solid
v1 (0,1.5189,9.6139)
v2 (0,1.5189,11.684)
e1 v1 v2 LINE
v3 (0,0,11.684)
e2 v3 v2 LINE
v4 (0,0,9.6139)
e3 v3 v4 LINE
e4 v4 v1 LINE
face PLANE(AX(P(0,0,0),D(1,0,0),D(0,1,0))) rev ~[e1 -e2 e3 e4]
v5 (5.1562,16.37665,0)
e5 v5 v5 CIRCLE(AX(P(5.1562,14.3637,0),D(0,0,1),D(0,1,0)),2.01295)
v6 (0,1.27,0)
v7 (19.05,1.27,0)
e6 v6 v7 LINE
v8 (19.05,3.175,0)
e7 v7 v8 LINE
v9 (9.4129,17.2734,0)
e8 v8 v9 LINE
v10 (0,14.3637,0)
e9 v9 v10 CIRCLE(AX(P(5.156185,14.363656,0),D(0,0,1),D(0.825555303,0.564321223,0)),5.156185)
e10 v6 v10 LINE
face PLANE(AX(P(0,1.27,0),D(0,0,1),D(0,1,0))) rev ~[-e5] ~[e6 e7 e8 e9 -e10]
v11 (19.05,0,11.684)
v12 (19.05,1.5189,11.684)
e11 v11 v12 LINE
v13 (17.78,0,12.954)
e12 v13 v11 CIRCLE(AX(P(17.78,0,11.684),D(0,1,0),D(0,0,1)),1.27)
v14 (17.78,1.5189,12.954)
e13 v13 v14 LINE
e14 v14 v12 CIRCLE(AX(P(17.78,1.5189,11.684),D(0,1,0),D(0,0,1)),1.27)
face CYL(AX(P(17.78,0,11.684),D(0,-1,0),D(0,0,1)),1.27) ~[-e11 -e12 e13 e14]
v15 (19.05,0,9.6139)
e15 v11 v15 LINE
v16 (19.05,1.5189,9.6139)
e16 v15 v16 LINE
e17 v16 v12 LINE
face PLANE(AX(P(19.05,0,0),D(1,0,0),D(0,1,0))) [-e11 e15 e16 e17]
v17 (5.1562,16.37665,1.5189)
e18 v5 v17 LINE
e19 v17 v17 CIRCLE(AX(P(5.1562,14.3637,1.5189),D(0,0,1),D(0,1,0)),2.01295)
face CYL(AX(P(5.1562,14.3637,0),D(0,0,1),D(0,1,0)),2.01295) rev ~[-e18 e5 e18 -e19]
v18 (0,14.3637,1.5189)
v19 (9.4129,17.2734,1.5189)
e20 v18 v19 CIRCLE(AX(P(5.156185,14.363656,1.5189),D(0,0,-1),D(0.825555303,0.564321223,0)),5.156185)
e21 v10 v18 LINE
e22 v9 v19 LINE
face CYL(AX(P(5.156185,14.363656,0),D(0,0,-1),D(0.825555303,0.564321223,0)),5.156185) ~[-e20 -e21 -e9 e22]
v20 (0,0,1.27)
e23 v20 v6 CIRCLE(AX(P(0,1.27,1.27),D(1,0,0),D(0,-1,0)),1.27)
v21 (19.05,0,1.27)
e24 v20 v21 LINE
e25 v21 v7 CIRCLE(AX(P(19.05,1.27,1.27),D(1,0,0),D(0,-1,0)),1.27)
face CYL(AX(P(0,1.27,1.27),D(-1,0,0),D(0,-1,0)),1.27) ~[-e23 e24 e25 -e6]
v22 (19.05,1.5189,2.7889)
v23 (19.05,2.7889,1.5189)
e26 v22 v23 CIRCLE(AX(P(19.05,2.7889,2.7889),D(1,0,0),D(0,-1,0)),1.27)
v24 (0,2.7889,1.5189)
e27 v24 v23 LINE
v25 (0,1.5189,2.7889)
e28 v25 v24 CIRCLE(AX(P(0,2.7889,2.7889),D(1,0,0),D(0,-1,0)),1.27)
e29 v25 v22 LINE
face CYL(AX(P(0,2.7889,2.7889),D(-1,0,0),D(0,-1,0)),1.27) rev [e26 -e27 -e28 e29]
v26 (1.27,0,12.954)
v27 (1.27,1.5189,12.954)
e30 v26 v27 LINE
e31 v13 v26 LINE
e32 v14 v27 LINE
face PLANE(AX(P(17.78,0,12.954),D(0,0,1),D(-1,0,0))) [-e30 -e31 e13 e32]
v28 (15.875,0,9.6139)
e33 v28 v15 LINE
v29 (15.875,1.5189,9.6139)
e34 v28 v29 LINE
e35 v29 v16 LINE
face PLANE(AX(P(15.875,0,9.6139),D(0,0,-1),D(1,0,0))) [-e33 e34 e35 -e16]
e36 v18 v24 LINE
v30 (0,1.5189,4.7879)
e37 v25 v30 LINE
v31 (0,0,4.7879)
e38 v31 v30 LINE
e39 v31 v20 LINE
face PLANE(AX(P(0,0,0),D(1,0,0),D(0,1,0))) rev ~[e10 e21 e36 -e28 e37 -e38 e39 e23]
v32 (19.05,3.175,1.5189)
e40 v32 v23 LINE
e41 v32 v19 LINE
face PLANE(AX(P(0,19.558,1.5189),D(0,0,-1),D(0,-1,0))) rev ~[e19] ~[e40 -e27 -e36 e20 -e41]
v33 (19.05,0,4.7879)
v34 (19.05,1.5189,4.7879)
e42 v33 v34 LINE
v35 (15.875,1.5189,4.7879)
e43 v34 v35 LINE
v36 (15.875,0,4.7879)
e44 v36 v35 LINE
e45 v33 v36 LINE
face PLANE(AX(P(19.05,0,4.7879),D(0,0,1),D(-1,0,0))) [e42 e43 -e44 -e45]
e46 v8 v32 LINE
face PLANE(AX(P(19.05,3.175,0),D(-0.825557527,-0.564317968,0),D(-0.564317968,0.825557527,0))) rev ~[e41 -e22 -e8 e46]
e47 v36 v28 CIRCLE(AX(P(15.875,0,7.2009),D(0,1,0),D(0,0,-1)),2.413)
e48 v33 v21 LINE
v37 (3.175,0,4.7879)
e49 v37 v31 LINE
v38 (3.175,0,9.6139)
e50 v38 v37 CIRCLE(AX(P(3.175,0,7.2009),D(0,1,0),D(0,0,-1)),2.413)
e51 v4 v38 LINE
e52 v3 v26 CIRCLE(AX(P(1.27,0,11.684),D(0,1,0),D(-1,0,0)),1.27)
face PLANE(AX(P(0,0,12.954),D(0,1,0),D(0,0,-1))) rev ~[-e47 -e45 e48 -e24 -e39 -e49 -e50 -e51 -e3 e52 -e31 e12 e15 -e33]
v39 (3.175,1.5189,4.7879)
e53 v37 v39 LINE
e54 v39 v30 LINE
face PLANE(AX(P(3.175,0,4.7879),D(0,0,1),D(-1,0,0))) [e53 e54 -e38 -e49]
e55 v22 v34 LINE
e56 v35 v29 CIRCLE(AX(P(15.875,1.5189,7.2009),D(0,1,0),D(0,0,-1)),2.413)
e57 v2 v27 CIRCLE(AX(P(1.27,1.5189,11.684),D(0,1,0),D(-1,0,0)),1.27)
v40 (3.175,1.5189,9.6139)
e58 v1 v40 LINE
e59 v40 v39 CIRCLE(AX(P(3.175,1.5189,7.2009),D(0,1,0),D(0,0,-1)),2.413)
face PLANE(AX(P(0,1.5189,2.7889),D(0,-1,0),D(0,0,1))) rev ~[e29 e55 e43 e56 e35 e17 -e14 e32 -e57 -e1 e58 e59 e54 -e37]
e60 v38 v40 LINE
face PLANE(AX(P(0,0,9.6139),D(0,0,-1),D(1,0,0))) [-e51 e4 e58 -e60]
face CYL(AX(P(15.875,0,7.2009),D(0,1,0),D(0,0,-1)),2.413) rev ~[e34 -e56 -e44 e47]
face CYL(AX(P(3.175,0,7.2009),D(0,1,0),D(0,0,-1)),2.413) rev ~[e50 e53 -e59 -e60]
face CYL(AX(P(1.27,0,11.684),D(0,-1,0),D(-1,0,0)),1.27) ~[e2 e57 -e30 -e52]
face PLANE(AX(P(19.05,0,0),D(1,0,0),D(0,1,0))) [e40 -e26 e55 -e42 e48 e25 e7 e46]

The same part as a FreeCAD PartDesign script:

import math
import FreeCAD as App
import Part
import Sketcher
Q = App.Units.Quantity

doc = App.newDocument("Part")
body = doc.addObject("PartDesign::Body", "Body")

# Sketch on YZ plane
sketch1 = doc.addObject("Sketcher::SketchObject", "Sketch")
body.addObject(sketch1)
sketch1.AttachmentSupport = (doc.YZ_Plane, [""])
sketch1.MapMode = "FlatFace"
sketch1.addGeometry([
    Part.LineSegment(App.Vector(1.5189, 12.954, 0), App.Vector(0, 12.954, 0)),  # 0
    Part.LineSegment(App.Vector(0, 12.954, 0), App.Vector(0, 1.27, 0)),  # 1
    Part.ArcOfCircle(Part.Circle(App.Vector(1.27, 1.27, 0), App.Vector(0, 0, 1), 1.27), math.radians(180), math.radians(270)),  # 2
    Part.LineSegment(App.Vector(1.27, 0, 0), App.Vector(19.558, 0, 0)),  # 3
    Part.LineSegment(App.Vector(19.558, 0, 0), App.Vector(19.558, 1.5189, 0)),  # 4
    Part.LineSegment(App.Vector(19.558, 1.5189, 0), App.Vector(2.7889, 1.5189, 0)),  # 5
    Part.ArcOfCircle(Part.Circle(App.Vector(2.7889, 2.7889, 0), App.Vector(0, 0, 1), 1.27), math.radians(180), math.radians(270)),  # 6
    Part.LineSegment(App.Vector(1.5189, 2.7889, 0), App.Vector(1.5189, 12.954, 0)),  # 7
], False)
sketch1.addConstraint([
    Sketcher.Constraint("Coincident", 0, 2, 1, 1),
    Sketcher.Constraint("Tangent", 1, 2, 2, 1),
    Sketcher.Constraint("Tangent", 2, 2, 3, 1),
    Sketcher.Constraint("Coincident", 3, 2, 4, 1),
    Sketcher.Constraint("Coincident", 4, 2, 5, 1),
    Sketcher.Constraint("Tangent", 5, 2, 6, 2),
    Sketcher.Constraint("Tangent", 6, 1, 7, 1),
    Sketcher.Constraint("Coincident", 7, 2, 0, 1),
    Sketcher.Constraint("Horizontal", 0),
    Sketcher.Constraint("Vertical", 1),
    Sketcher.Constraint("Horizontal", 3),
    Sketcher.Constraint("Vertical", 4),
    Sketcher.Constraint("Horizontal", 5),
    Sketcher.Constraint("Vertical", 7),
    Sketcher.Constraint("Equal", 2, 6),
    Sketcher.Constraint("PointOnObject", 0, 2, -2),
    Sketcher.Constraint("PointOnObject", 2, 2, -1),
    Sketcher.Constraint("Equal", 0, 4),
    Sketcher.Constraint("Radius", 2, Q("0.05 in")),
    Sketcher.Constraint("DistanceX", 3, 1, 3, 2, Q("0.72 in")),
    Sketcher.Constraint("DistanceY", 1, 2, 1, 1, Q("0.46 in")),
    Sketcher.Constraint("DistanceX", 0, 2, 0, 1, Q("0.0598 in")),
])
pad1 = doc.addObject("PartDesign::Pad", "Pad")
body.addObject(pad1)
pad1.Profile = sketch1
pad1.Length = Q("0.75 in")

# Sketch on XY plane
sketch2 = doc.addObject("Sketcher::SketchObject", "Sketch001")
body.addObject(sketch2)
sketch2.AttachmentSupport = (doc.XY_Plane, [""])
sketch2.MapMode = "FlatFace"
sketch2.addGeometry([
    Part.LineSegment(App.Vector(-19.05, 29.337, 0), App.Vector(-19.05, -19.558, 0)),  # 0
    Part.LineSegment(App.Vector(-19.05, -19.558, 0), App.Vector(28.575, -19.558, 0)),  # 1
    Part.LineSegment(App.Vector(28.575, -19.558, 0), App.Vector(28.575, 29.337, 0)),  # 2
    Part.LineSegment(App.Vector(28.575, 29.337, 0), App.Vector(-19.05, 29.337, 0)),  # 3
    Part.LineSegment(App.Vector(19.05, 0, 0), App.Vector(0, 0, 0)),  # 4
    Part.LineSegment(App.Vector(0, 0, 0), App.Vector(0, 14.3637, 0)),  # 5
    Part.ArcOfCircle(Part.Circle(App.Vector(5.1562, 14.3637, 0), App.Vector(0, 0, 1), 5.156147), math.radians(34.354859), math.radians(180)),  # 6
    Part.LineSegment(App.Vector(9.4129, 17.2734, 0), App.Vector(19.05, 3.175, 0)),  # 7
    Part.LineSegment(App.Vector(19.05, 3.175, 0), App.Vector(19.05, 0, 0)),  # 8
], False)
sketch2.addConstraint([
    Sketcher.Constraint("Coincident", 0, 2, 1, 1),
    Sketcher.Constraint("Coincident", 1, 2, 2, 1),
    Sketcher.Constraint("Coincident", 2, 2, 3, 1),
    Sketcher.Constraint("Coincident", 3, 2, 0, 1),
    Sketcher.Constraint("Coincident", 4, 2, 5, 1),
    Sketcher.Constraint("Tangent", 5, 2, 6, 2),
    Sketcher.Constraint("Tangent", 6, 1, 7, 1),
    Sketcher.Constraint("Coincident", 7, 2, 8, 1),
    Sketcher.Constraint("Coincident", 8, 2, 4, 1),
    Sketcher.Constraint("Vertical", 0),
    Sketcher.Constraint("Horizontal", 1),
    Sketcher.Constraint("Vertical", 2),
    Sketcher.Constraint("Horizontal", 3),
    Sketcher.Constraint("Horizontal", 4),
    Sketcher.Constraint("Vertical", 5),
    Sketcher.Constraint("Vertical", 8),
    Sketcher.Constraint("Coincident", 4, 2, -1, 1),
    Sketcher.Constraint("Radius", 6, Q("0.203 in")),
    Sketcher.Constraint("DistanceX", 4, 2, 4, 1, Q("0.75 in")),
    Sketcher.Constraint("DistanceX", 1, 1, 1, 2, Q("1.875 in")),
    Sketcher.Constraint("DistanceY", 0, 2, 0, 1, Q("1.925 in")),
    Sketcher.Constraint("DistanceY", 8, 2, 8, 1, Q("0.125 in")),
    Sketcher.Constraint("DistanceX", 0, 2, -1, 1, Q("0.75 in")),
    Sketcher.Constraint("DistanceY", 0, 2, -1, 1, Q("0.77 in")),
    Sketcher.Constraint("DistanceY", 5, 1, 5, 2, Q("0.5655 in")),
])
pocket1 = doc.addObject("PartDesign::Pocket", "Pocket")
body.addObject(pocket1)
pocket1.Profile = sketch2
pocket1.Length = Q("0.51 in")
pocket1.Reversed = True

# Sketch on XY plane
sketch3 = doc.addObject("Sketcher::SketchObject", "Sketch002")
body.addObject(sketch3)
sketch3.AttachmentSupport = (doc.XY_Plane, [""])
sketch3.MapMode = "FlatFace"
sketch3.addGeometry(Part.Circle(App.Vector(5.1562, 14.3637, 0), App.Vector(0, 0, 1), 2.01295), False)
sketch3.addConstraint([
    Sketcher.Constraint("Diameter", 0, Q("0.1585 in")),
    Sketcher.Constraint("DistanceX", -1, 1, 0, 3, Q("0.203 in")),
    Sketcher.Constraint("DistanceY", -1, 1, 0, 3, Q("0.5655 in")),
])
doc.recompute()
hole = doc.addObject("PartDesign::Hole", "Hole")
body.addObject(hole)
hole.Profile = sketch3
hole.ThreadType = "None"
hole.Diameter = Q("0.1585 in")
hole.DepthType = "Dimension"
hole.Depth = Q("0.0597992 in")
hole.DrillPoint = "Flat"
hole.Reversed = True

# Sketch on XZ plane
sketch4 = doc.addObject("Sketcher::SketchObject", "Sketch003")
body.addObject(sketch4)
sketch4.AttachmentSupport = (doc.XZ_Plane, [""])
sketch4.MapMode = "FlatFace"
sketch4.addGeometry(Part.Circle(App.Vector(3.175, 7.2009, 0), App.Vector(0, 0, 1), 2.413), False)
sketch4.addConstraint([
    Sketcher.Constraint("Diameter", 0, Q("0.19 in")),
    Sketcher.Constraint("DistanceX", -1, 1, 0, 3, Q("0.125 in")),
    Sketcher.Constraint("DistanceY", -1, 1, 0, 3, Q("0.2835 in")),
])
doc.recompute()
hole2 = doc.addObject("PartDesign::Hole", "Hole001")
body.addObject(hole2)
hole2.Profile = sketch4
hole2.ThreadType = "None"
hole2.Diameter = Q("0.19 in")
hole2.DepthType = "Dimension"
hole2.Depth = Q("0.0597992 in")
hole2.DrillPoint = "Flat"

# Sketch on XZ plane
sketch5 = doc.addObject("Sketcher::SketchObject", "Sketch004")
body.addObject(sketch5)
sketch5.AttachmentSupport = (doc.XZ_Plane, [""])
sketch5.MapMode = "FlatFace"
sketch5.addGeometry(Part.Circle(App.Vector(15.875, 7.2009, 0), App.Vector(0, 0, 1), 2.413), False)
sketch5.addConstraint([
    Sketcher.Constraint("Diameter", 0, Q("0.19 in")),
    Sketcher.Constraint("DistanceX", -1, 1, 0, 3, Q("0.625 in")),
    Sketcher.Constraint("DistanceY", -1, 1, 0, 3, Q("0.2835 in")),
])
doc.recompute()
hole3 = doc.addObject("PartDesign::Hole", "Hole002")
body.addObject(hole3)
hole3.Profile = sketch5
hole3.ThreadType = "None"
hole3.Diameter = Q("0.19 in")
hole3.DepthType = "Dimension"
hole3.Depth = Q("0.0597992 in")
hole3.DrillPoint = "Flat"

# Sketch on XZ plane
sketch6 = doc.addObject("Sketcher::SketchObject", "Sketch005")
body.addObject(sketch6)
sketch6.AttachmentSupport = (doc.XZ_Plane, [""])
sketch6.MapMode = "FlatFace"
sketch6.addGeometry([
    Part.LineSegment(App.Vector(3.175, 4.7879, 0), App.Vector(0, 4.7879, 0)),
    Part.LineSegment(App.Vector(0, 4.7879, 0), App.Vector(0, 9.6139, 0)),
    Part.LineSegment(App.Vector(0, 9.6139, 0), App.Vector(3.175, 9.6139, 0)),
    Part.LineSegment(App.Vector(3.175, 9.6139, 0), App.Vector(3.175, 4.7879, 0)),
], False)
sketch6.addConstraint([
    Sketcher.Constraint("Coincident", 0, 2, 1, 1),
    Sketcher.Constraint("Coincident", 1, 2, 2, 1),
    Sketcher.Constraint("Coincident", 2, 2, 3, 1),
    Sketcher.Constraint("Coincident", 3, 2, 0, 1),
    Sketcher.Constraint("Horizontal", 0),
    Sketcher.Constraint("Vertical", 1),
    Sketcher.Constraint("Horizontal", 2),
    Sketcher.Constraint("Vertical", 3),
    Sketcher.Constraint("PointOnObject", 0, 2, -2),
    Sketcher.Constraint("DistanceY", 1, 1, 1, 2, Q("0.19 in")),
    Sketcher.Constraint("DistanceX", 0, 2, 0, 1, Q("0.125 in")),
    Sketcher.Constraint("DistanceY", -1, 1, 0, 2, Q("0.1885 in")),
])
pocket2 = doc.addObject("PartDesign::Pocket", "Pocket001")
body.addObject(pocket2)
pocket2.Profile = sketch6
pocket2.Length = Q("0.0597992 in")

# Sketch on XZ plane
sketch7 = doc.addObject("Sketcher::SketchObject", "Sketch006")
body.addObject(sketch7)
sketch7.AttachmentSupport = (doc.XZ_Plane, [""])
sketch7.MapMode = "FlatFace"
sketch7.addGeometry([
    Part.LineSegment(App.Vector(19.05, 4.7879, 0), App.Vector(15.875, 4.7879, 0)),
    Part.LineSegment(App.Vector(15.875, 4.7879, 0), App.Vector(15.875, 9.6139, 0)),
    Part.LineSegment(App.Vector(15.875, 9.6139, 0), App.Vector(19.05, 9.6139, 0)),
    Part.LineSegment(App.Vector(19.05, 9.6139, 0), App.Vector(19.05, 4.7879, 0)),
], False)
sketch7.addConstraint([
    Sketcher.Constraint("Coincident", 0, 2, 1, 1),
    Sketcher.Constraint("Coincident", 1, 2, 2, 1),
    Sketcher.Constraint("Coincident", 2, 2, 3, 1),
    Sketcher.Constraint("Coincident", 3, 2, 0, 1),
    Sketcher.Constraint("Horizontal", 0),
    Sketcher.Constraint("Vertical", 1),
    Sketcher.Constraint("Horizontal", 2),
    Sketcher.Constraint("Vertical", 3),
    Sketcher.Constraint("DistanceY", 1, 1, 1, 2, Q("0.19 in")),
    Sketcher.Constraint("DistanceX", 0, 2, 0, 1, Q("0.125 in")),
    Sketcher.Constraint("DistanceX", -1, 1, 2, 2, Q("0.75 in")),
    Sketcher.Constraint("DistanceY", -1, 1, 0, 2, Q("0.1885 in")),
])
pocket3 = doc.addObject("PartDesign::Pocket", "Pocket002")
body.addObject(pocket3)
pocket3.Profile = sketch7
pocket3.Length = Q("0.0597992 in")

# Sketch on XZ plane
sketch8 = doc.addObject("Sketcher::SketchObject", "Sketch007")
body.addObject(sketch8)
sketch8.AttachmentSupport = (doc.XZ_Plane, [""])
sketch8.MapMode = "FlatFace"
sketch8.addGeometry([
    Part.LineSegment(App.Vector(0, 11.684, 0), App.Vector(0, 19.431, 0)),  # 0
    Part.LineSegment(App.Vector(0, 19.431, 0), App.Vector(19.05, 19.431, 0)),  # 1
    Part.LineSegment(App.Vector(19.05, 19.431, 0), App.Vector(19.05, 11.684, 0)),  # 2
    Part.ArcOfCircle(Part.Circle(App.Vector(17.78, 11.684, 0), App.Vector(0, 0, 1), 1.27), math.radians(0), math.radians(90)),  # 3
    Part.LineSegment(App.Vector(17.78, 12.954, 0), App.Vector(1.27, 12.954, 0)),  # 4
    Part.ArcOfCircle(Part.Circle(App.Vector(1.27, 11.684, 0), App.Vector(0, 0, 1), 1.27), math.radians(90), math.radians(180)),  # 5
], False)
sketch8.addConstraint([
    Sketcher.Constraint("Coincident", 0, 2, 1, 1),
    Sketcher.Constraint("Coincident", 1, 2, 2, 1),
    Sketcher.Constraint("Tangent", 2, 2, 3, 1),
    Sketcher.Constraint("Tangent", 3, 2, 4, 1),
    Sketcher.Constraint("Tangent", 4, 2, 5, 1),
    Sketcher.Constraint("Tangent", 5, 2, 0, 1),
    Sketcher.Constraint("Vertical", 0),
    Sketcher.Constraint("Horizontal", 1),
    Sketcher.Constraint("Vertical", 2),
    Sketcher.Constraint("Horizontal", 4),
    Sketcher.Constraint("Equal", 3, 5),
    Sketcher.Constraint("PointOnObject", 0, 2, -2),
    Sketcher.Constraint("Radius", 3, Q("0.05 in")),
    Sketcher.Constraint("DistanceX", 1, 1, 1, 2, Q("0.75 in")),
    Sketcher.Constraint("DistanceY", 0, 1, 0, 2, Q("0.305 in")),
    Sketcher.Constraint("DistanceY", -1, 1, 3, 3, Q("0.46 in")),
])
pocket4 = doc.addObject("PartDesign::Pocket", "Pocket003")
body.addObject(pocket4)
pocket4.Profile = sketch8
pocket4.Length = Q("0.0597992 in")

doc.recompute()
